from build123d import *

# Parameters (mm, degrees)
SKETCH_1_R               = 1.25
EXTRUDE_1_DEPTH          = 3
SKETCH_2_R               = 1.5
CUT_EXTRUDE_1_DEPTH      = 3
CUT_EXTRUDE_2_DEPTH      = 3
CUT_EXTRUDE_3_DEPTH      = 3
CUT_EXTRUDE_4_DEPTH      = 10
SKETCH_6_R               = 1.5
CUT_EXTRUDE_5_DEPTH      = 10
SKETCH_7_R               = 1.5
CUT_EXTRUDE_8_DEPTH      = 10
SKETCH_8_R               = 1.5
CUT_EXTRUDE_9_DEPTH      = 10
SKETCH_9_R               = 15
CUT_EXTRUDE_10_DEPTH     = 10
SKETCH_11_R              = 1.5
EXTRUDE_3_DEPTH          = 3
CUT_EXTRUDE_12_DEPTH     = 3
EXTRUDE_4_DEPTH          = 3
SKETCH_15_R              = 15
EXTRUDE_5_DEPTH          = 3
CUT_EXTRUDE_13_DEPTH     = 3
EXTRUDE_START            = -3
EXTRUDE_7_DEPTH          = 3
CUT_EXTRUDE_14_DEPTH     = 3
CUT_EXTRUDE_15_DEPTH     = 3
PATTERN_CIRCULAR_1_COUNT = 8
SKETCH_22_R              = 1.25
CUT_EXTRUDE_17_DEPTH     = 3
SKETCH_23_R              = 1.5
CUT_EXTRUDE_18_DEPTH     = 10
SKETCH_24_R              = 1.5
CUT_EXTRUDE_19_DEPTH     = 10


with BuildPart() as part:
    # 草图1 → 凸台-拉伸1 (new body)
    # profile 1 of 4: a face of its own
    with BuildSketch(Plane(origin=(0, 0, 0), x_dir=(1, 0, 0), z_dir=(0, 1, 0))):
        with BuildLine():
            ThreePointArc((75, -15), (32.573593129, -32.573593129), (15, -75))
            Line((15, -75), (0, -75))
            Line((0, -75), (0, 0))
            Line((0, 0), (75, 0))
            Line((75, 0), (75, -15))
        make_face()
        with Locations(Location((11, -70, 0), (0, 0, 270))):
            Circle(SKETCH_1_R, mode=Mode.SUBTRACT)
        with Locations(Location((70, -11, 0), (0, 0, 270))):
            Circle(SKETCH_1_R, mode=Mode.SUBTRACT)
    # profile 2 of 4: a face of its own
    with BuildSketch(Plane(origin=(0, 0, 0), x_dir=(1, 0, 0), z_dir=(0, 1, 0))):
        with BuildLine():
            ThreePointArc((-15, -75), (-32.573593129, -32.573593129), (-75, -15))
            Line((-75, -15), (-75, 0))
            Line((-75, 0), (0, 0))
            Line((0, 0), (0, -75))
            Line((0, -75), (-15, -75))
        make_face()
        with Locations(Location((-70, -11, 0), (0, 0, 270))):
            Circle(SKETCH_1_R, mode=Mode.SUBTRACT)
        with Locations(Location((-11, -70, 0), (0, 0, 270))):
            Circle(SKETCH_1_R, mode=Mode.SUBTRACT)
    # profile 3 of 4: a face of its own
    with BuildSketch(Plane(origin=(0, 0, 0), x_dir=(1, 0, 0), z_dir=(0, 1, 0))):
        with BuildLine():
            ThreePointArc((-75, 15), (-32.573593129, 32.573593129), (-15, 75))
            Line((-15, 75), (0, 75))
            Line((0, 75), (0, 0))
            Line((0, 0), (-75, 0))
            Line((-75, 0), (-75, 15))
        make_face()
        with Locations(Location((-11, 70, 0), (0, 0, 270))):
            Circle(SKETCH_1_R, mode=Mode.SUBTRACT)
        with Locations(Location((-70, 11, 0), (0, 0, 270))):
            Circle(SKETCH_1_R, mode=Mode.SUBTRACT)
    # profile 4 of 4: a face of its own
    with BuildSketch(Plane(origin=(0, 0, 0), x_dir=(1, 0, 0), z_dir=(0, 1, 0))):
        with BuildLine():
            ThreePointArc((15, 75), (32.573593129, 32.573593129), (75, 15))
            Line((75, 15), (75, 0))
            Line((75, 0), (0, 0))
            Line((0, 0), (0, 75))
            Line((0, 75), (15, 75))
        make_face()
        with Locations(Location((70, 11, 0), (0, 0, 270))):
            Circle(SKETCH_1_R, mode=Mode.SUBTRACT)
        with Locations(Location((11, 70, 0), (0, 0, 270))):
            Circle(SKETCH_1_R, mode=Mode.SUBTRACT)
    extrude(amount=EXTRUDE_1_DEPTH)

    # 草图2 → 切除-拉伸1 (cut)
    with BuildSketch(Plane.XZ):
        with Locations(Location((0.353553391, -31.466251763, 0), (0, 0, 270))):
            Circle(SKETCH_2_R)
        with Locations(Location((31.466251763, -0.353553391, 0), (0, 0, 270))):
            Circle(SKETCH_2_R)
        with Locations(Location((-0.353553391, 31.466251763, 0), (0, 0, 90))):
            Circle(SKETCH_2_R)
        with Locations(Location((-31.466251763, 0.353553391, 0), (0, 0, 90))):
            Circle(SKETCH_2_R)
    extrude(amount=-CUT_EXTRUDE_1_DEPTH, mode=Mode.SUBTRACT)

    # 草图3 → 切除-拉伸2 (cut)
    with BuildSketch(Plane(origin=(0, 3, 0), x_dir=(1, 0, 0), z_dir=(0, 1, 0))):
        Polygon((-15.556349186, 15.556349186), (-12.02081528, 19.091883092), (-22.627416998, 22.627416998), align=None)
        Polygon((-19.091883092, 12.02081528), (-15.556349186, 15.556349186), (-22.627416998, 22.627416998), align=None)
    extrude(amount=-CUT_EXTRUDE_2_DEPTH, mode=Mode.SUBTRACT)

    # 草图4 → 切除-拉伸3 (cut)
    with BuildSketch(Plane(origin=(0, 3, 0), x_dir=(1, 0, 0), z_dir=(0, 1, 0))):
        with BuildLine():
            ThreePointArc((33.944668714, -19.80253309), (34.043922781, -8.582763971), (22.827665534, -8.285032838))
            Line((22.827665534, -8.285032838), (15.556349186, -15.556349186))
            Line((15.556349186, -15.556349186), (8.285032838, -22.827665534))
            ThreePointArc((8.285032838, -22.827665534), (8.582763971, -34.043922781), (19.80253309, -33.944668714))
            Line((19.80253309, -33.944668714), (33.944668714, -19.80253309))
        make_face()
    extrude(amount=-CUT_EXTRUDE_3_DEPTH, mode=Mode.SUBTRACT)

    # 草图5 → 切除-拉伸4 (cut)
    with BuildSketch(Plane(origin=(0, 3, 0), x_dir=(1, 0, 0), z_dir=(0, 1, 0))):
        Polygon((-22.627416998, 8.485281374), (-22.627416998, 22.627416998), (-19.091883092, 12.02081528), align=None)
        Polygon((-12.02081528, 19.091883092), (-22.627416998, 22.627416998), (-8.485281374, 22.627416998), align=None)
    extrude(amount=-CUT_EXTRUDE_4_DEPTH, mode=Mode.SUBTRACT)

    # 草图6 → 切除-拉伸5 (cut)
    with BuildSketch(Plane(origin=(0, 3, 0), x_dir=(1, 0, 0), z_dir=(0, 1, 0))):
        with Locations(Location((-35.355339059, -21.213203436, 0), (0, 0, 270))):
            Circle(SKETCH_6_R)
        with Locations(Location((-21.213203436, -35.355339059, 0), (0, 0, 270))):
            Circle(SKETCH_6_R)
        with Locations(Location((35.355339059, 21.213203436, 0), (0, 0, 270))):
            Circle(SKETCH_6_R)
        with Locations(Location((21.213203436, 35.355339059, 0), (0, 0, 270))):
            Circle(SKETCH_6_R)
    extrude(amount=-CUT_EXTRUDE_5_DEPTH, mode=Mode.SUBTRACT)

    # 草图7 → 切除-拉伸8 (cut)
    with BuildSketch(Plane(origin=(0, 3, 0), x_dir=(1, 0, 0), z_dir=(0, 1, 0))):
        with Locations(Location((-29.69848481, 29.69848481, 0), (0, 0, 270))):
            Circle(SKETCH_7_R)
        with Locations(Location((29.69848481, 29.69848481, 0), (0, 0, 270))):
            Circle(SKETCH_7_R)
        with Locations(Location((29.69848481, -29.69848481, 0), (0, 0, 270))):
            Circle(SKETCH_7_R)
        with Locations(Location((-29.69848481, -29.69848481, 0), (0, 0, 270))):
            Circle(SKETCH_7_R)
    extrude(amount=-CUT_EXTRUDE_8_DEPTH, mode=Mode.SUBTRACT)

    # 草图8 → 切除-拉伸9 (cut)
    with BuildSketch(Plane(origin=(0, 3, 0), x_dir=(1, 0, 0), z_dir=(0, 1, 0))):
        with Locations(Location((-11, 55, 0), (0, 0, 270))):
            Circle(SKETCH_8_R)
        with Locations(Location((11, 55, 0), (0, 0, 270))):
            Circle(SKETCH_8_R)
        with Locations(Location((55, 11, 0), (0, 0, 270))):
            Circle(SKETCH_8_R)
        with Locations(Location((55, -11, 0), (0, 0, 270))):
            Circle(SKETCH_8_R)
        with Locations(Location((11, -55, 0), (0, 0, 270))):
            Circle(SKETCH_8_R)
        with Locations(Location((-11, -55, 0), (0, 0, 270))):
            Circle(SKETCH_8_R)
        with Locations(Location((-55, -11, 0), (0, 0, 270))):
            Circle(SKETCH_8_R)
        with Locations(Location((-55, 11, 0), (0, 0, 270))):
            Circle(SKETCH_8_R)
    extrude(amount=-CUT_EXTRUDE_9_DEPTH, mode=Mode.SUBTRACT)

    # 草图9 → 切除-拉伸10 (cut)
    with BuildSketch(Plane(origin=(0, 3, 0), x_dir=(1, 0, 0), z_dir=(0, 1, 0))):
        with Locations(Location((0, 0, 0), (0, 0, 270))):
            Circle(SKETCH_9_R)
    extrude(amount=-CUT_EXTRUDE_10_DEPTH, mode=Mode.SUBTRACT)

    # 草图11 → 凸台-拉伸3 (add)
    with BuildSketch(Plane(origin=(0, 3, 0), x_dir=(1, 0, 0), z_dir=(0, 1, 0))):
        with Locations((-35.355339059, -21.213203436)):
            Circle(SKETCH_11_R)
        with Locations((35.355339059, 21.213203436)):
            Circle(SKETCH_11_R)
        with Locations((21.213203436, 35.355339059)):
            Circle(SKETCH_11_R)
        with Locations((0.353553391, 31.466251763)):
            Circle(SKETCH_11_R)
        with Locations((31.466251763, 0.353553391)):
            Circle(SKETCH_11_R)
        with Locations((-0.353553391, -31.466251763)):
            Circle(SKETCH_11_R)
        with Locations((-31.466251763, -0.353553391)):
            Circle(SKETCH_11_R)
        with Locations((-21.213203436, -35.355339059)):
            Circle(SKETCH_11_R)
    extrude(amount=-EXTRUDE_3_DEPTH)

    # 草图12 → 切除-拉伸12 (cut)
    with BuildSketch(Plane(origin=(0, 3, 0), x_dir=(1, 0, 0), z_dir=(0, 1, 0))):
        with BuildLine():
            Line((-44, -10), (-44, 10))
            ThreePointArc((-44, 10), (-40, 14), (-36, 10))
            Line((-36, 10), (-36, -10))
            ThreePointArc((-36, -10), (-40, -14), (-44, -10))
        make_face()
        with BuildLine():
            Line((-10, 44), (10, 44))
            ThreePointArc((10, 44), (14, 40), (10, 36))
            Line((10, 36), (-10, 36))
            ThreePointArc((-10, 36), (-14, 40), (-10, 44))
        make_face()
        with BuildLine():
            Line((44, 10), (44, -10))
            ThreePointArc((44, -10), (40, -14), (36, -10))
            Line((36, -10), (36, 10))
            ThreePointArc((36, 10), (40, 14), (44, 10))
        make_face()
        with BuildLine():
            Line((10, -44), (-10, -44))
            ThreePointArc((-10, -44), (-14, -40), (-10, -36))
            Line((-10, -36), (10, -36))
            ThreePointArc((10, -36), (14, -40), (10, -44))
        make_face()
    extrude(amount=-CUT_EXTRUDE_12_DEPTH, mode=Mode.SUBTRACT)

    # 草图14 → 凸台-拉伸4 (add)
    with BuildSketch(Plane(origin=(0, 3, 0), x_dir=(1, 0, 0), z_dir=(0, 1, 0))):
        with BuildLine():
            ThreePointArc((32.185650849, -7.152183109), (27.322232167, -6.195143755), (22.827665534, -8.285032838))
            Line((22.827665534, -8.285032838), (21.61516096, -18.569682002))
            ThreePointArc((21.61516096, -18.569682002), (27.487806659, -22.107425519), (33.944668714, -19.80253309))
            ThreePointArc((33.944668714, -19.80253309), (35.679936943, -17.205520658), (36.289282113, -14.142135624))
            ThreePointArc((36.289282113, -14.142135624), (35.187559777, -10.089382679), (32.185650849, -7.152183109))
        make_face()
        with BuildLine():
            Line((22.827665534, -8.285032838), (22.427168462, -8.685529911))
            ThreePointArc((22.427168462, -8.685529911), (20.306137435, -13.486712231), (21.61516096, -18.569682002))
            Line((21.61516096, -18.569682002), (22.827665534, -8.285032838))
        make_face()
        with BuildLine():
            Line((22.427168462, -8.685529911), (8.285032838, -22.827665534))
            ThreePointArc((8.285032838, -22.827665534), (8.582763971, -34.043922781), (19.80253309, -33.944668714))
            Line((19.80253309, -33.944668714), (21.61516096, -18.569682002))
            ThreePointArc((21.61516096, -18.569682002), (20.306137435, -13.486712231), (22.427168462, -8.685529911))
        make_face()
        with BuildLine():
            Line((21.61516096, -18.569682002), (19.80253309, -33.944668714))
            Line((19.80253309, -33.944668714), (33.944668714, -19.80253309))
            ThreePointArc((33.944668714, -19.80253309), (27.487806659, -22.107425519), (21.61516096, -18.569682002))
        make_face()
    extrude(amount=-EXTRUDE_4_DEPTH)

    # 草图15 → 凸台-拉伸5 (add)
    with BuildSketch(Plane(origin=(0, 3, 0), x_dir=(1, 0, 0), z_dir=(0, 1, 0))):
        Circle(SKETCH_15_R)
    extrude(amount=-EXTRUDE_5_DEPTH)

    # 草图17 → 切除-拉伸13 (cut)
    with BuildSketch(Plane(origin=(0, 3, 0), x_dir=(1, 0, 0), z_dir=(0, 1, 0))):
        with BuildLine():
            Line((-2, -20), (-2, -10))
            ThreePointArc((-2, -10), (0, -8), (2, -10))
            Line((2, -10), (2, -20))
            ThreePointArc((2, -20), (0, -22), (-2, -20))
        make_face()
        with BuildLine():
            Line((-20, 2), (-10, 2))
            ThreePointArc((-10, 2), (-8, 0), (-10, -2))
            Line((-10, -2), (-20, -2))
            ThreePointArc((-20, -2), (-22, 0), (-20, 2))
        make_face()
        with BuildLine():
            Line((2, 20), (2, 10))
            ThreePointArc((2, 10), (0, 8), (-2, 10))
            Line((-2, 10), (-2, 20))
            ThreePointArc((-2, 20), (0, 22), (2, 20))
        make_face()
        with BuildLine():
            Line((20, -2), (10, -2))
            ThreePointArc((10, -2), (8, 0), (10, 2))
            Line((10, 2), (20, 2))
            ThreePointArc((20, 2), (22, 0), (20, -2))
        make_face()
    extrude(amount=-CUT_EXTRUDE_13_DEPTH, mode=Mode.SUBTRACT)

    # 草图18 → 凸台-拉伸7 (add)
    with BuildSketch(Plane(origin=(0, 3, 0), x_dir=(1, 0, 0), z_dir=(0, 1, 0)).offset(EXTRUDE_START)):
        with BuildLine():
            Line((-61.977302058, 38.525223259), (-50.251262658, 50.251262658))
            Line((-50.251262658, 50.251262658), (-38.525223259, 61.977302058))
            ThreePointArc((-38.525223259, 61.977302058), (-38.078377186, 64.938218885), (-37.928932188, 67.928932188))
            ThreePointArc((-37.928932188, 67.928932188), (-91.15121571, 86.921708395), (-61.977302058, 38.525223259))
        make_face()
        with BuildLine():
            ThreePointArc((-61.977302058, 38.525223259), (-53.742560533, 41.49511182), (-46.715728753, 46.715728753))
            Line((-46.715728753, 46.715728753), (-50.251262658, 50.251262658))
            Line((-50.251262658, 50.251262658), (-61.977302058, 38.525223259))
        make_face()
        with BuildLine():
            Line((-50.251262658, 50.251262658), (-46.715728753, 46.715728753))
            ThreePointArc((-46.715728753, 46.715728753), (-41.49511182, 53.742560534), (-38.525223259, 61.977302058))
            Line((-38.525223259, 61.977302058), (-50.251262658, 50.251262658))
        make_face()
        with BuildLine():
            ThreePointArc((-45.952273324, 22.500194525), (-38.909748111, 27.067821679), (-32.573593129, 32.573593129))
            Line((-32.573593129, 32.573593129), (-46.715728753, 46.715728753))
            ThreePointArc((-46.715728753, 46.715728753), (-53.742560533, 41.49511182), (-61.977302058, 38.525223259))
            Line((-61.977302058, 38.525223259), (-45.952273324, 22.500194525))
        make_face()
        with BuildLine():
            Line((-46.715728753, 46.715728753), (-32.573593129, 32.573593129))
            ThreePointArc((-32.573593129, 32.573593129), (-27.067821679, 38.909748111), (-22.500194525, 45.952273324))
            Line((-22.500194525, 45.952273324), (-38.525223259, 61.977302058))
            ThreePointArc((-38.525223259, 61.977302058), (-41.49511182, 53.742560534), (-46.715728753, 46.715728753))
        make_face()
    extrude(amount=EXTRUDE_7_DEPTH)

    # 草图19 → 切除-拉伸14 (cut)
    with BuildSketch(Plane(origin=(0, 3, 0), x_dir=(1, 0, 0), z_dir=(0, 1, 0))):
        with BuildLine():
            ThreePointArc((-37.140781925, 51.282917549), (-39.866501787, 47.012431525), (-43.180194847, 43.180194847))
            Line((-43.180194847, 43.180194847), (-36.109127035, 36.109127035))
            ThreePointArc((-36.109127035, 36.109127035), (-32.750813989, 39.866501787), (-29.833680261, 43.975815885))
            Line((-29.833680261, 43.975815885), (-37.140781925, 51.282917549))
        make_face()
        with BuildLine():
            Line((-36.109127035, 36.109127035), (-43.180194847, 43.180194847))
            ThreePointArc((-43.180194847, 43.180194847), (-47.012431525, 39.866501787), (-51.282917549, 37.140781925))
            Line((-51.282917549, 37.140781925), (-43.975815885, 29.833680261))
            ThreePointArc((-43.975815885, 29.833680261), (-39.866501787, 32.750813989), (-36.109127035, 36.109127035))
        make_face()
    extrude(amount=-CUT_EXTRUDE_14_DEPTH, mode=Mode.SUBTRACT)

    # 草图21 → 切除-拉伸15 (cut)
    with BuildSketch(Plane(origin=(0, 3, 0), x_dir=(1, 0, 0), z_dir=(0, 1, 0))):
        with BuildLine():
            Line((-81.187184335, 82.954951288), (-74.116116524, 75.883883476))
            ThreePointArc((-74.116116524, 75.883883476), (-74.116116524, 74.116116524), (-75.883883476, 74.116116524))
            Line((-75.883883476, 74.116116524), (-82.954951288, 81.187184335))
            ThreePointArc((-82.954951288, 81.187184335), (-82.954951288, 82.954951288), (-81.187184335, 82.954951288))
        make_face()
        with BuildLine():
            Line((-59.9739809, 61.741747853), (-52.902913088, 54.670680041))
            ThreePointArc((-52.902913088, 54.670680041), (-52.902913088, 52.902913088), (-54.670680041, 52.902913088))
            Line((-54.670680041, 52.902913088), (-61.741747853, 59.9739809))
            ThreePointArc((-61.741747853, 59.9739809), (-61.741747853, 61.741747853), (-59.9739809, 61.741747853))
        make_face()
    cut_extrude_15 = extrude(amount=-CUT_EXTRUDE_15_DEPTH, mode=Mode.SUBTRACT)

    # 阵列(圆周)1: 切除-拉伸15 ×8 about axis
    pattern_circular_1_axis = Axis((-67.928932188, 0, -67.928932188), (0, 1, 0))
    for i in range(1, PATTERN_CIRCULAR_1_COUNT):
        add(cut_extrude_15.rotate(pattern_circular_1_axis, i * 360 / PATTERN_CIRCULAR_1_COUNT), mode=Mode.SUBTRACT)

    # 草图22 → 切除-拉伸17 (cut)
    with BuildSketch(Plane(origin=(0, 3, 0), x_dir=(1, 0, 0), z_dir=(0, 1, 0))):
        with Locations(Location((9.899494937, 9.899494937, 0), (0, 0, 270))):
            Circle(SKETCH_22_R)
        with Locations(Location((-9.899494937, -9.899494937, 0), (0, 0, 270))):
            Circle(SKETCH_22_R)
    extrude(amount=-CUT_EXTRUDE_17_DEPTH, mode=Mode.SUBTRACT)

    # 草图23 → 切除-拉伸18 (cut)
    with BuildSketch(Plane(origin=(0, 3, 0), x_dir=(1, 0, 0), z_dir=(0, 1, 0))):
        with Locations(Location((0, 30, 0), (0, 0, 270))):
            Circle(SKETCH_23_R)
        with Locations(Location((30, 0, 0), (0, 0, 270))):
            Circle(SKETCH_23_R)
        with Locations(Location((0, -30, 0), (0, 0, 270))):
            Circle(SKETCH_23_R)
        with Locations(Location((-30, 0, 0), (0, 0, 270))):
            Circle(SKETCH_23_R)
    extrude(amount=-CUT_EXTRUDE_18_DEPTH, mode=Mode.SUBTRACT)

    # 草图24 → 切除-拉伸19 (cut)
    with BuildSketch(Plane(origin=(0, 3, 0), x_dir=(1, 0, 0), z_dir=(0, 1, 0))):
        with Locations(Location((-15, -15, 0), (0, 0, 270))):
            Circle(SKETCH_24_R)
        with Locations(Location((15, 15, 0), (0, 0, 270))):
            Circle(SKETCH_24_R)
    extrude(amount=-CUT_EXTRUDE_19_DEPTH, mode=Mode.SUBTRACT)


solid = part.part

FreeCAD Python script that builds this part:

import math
import FreeCAD as App
import Part
import Sketcher
Q = App.Units.Quantity

doc = App.newDocument("Part")
body = doc.addObject("PartDesign::Body", "Body")

sketch1 = body.newObject("Sketcher::SketchObject", "Sketch")
sketch1.AttachmentSupport = (doc.getObject("XZ_Plane"), [""])
sketch1.MapMode = "FlatFace"
sketch1.addGeometry([
    Part.ArcOfCircle(Part.Circle(App.Vector(75, 75, 0), App.Vector(0, 0, 1), 60), math.radians(-180), math.radians(-90)),
    Part.LineSegment(App.Vector(75, 15, 0), App.Vector(75, -15, 0)),
    Part.ArcOfCircle(Part.Circle(App.Vector(75, -75, 0), App.Vector(0, 0, 1), 60), math.radians(90), math.radians(180)),
    Part.LineSegment(App.Vector(15, -75, 0), App.Vector(-15, -75, 0)),
    Part.ArcOfCircle(Part.Circle(App.Vector(-75, -75, 0), App.Vector(0, 0, 1), 60), math.radians(0), math.radians(90)),
    Part.LineSegment(App.Vector(-75, -15, 0), App.Vector(-75, 15, 0)),
    Part.ArcOfCircle(Part.Circle(App.Vector(-75, 75, 0), App.Vector(0, 0, 1), 60), math.radians(-90), math.radians(0)),
    Part.LineSegment(App.Vector(-15, 75, 0), App.Vector(15, 75, 0)),
    Part.Circle(App.Vector(11, 70, 0), App.Vector(0, 0, 1), 1.25),
    Part.Circle(App.Vector(70, 11, 0), App.Vector(0, 0, 1), 1.25),
    Part.Circle(App.Vector(11, -70, 0), App.Vector(0, 0, 1), 1.25),
    Part.Circle(App.Vector(70, -11, 0), App.Vector(0, 0, 1), 1.25),
    Part.Circle(App.Vector(-70, 11, 0), App.Vector(0, 0, 1), 1.25),
    Part.Circle(App.Vector(-11, 70, 0), App.Vector(0, 0, 1), 1.25),
    Part.Circle(App.Vector(-70, -11, 0), App.Vector(0, 0, 1), 1.25),
    Part.Circle(App.Vector(-11, -70, 0), App.Vector(0, 0, 1), 1.25),
], False)
sketch1.addConstraint([
    Sketcher.Constraint("Coincident", 0, 2, 1, 1),
    Sketcher.Constraint("Coincident", 1, 2, 2, 1),
    Sketcher.Constraint("Coincident", 2, 2, 3, 1),
    Sketcher.Constraint("Coincident", 3, 2, 4, 1),
    Sketcher.Constraint("Coincident", 4, 2, 5, 1),
    Sketcher.Constraint("Coincident", 5, 2, 6, 1),
    Sketcher.Constraint("Coincident", 6, 2, 7, 1),
    Sketcher.Constraint("Coincident", 7, 2, 0, 1),
    Sketcher.Constraint("Vertical", 1),
    Sketcher.Constraint("Horizontal", 3),
    Sketcher.Constraint("Vertical", 5),
    Sketcher.Constraint("Horizontal", 7),
    Sketcher.Constraint("Equal", 0, 2),
    Sketcher.Constraint("Equal", 2, 4),
    Sketcher.Constraint("Equal", 4, 6),
    Sketcher.Constraint("Equal", 8, 9),
    Sketcher.Constraint("Equal", 9, 10),
    Sketcher.Constraint("Equal", 10, 11),
    Sketcher.Constraint("Equal", 11, 12),
    Sketcher.Constraint("Equal", 12, 13),
    Sketcher.Constraint("Equal", 13, 14),
    Sketcher.Constraint("Equal", 14, 15),
    Sketcher.Constraint("Symmetric", 0, 3, 4, 3, -1, 1),
    Sketcher.Constraint("Symmetric", 2, 3, 6, 3, -1, 1),
    Sketcher.Constraint("Symmetric", 11, 3, 12, 3, -1, 1),
    Sketcher.Constraint("Symmetric", 10, 3, 13, 3, -1, 1),
    Sketcher.Constraint("Symmetric", 9, 3, 14, 3, -1, 1),
    Sketcher.Constraint("Symmetric", 8, 3, 15, 3, -1, 1),
    Sketcher.Constraint("Symmetric", 2, 3, 4, 3, -2),
    Sketcher.Constraint("Symmetric", 9, 3, 12, 3, -2),
    Sketcher.Constraint("Symmetric", 8, 3, 13, 3, -2),
    Sketcher.Constraint("Horizontal", 4, 3, 2, 2),
    Sketcher.Constraint("Horizontal", 0, 3, 6, 2),
    Sketcher.Constraint("Vertical", 2, 3, 0, 2),
    Sketcher.Constraint("Vertical", 6, 3, 4, 2),
    Sketcher.Constraint("Equal", 7, 1),
    Sketcher.Constraint("Radius", 0, 60.0),
    Sketcher.Constraint("Diameter", 8, 2.5),
    Sketcher.Constraint("DistanceX", 3, 2, 3, 1, 30.0),
    Sketcher.Constraint("DistanceX", -1, 1, 8, 3, 11.0),
    Sketcher.Constraint("DistanceY", -1, 1, 8, 3, 70.0),
    Sketcher.Constraint("DistanceX", -1, 1, 9, 3, 70.0),
    Sketcher.Constraint("DistanceY", -1, 1, 9, 3, 11.0),
])
pad1 = body.newObject("PartDesign::Pad", "Pad")
pad1.Profile = sketch1
pad1.Length = 3
pad1.Reversed = True

sketch2 = body.newObject("Sketcher::SketchObject", "Sketch001")
sketch2.AttachmentSupport = (doc.getObject("XZ_Plane"), [""])
sketch2.MapMode = "FlatFace"
sketch2.addGeometry([
    Part.Circle(App.Vector(0.353553, -31.466252, 0), App.Vector(0, 0, 1), 1.5),
    Part.Circle(App.Vector(31.466252, -0.353553, 0), App.Vector(0, 0, 1), 1.5),
    Part.Circle(App.Vector(-0.353553, 31.466252, 0), App.Vector(0, 0, 1), 1.5),
    Part.Circle(App.Vector(-31.466252, 0.353553, 0), App.Vector(0, 0, 1), 1.5),
], False)
sketch2.addConstraint([
    Sketcher.Constraint("Equal", 0, 1),
    Sketcher.Constraint("Equal", 1, 2),
    Sketcher.Constraint("Equal", 2, 3),
    Sketcher.Constraint("Symmetric", 0, 3, 2, 3, -1, 1),
    Sketcher.Constraint("Symmetric", 1, 3, 3, 3, -1, 1),
    Sketcher.Constraint("Diameter", 0, 3.0),
    Sketcher.Constraint("DistanceX", 0, 3, 1, 3, 31.112698),
    Sketcher.Constraint("DistanceY", 0, 3, 1, 3, 31.112698),
    Sketcher.Constraint("DistanceY", 0, 3, -1, 1, 31.466252),
    Sketcher.Constraint("DistanceX", -1, 1, 1, 3, 31.466252),
])
pocket1 = body.newObject("PartDesign::Pocket", "Pocket")
pocket1.Profile = sketch2
pocket1.Length = 3

sketch3 = body.newObject("Sketcher::SketchObject", "Sketch002")
sketch3.AttachmentSupport = (doc.getObject("XZ_Plane"), [""])
sketch3.MapMode = "FlatFace"
sketch3.AttachmentOffset = App.Placement(App.Vector(0, 0, -3), App.Rotation())
sketch3.addGeometry([
    Part.LineSegment(App.Vector(-12.020815, -19.091883, 0), App.Vector(-22.627417, -22.627417, 0)),
    Part.LineSegment(App.Vector(-22.627417, -22.627417, 0), App.Vector(-19.091883, -12.020815, 0)),
    Part.LineSegment(App.Vector(-19.091883, -12.020815, 0), App.Vector(-12.020815, -19.091883, 0)),
], False)
sketch3.addConstraint([
    Sketcher.Constraint("Coincident", 0, 2, 1, 1),
    Sketcher.Constraint("Coincident", 1, 2, 2, 1),
    Sketcher.Constraint("Coincident", 2, 2, 0, 1),
    Sketcher.Constraint("Equal", 0, 1),
    Sketcher.Constraint("Angle", 2, Q("-45 deg")),
    Sketcher.Constraint("Distance", 2, 10.0),
    Sketcher.Constraint("DistanceY", 0, 2, 1, 2, 10.606602),
    Sketcher.Constraint("DistanceX", 0, 2, -1, 1, 22.627417),
    Sketcher.Constraint("DistanceY", 0, 2, -1, 1, 22.627417),
])
pocket2 = body.newObject("PartDesign::Pocket", "Pocket001")
pocket2.Profile = sketch3
pocket2.Length = 3
pocket2.Reversed = True

sketch4 = body.newObject("Sketcher::SketchObject", "Sketch003")
sketch4.AttachmentSupport = (doc.getObject("XZ_Plane"), [""])
sketch4.MapMode = "FlatFace"
sketch4.AttachmentOffset = App.Placement(App.Vector(0, 0, -3), App.Rotation())
sketch4.addGeometry([
    Part.ArcOfCircle(Part.Circle(App.Vector(28.284271, 14.142136, 0), App.Vector(0, 0, 1), 8.005011), math.radians(-132.972618), math.radians(45)),
    Part.LineSegment(App.Vector(22.827666, 8.285033, 0), App.Vector(8.285033, 22.827666, 0)),
    Part.ArcOfCircle(Part.Circle(App.Vector(14.142136, 28.284271, 0), App.Vector(0, 0, 1), 8.005011), math.radians(45), math.radians(222.972618)),
    Part.LineSegment(App.Vector(19.802533, 33.944669, 0), App.Vector(33.944669, 19.802533, 0)),
], False)
sketch4.addConstraint([
    Sketcher.Constraint("Coincident", 0, 1, 1, 1),
    Sketcher.Constraint("Coincident", 1, 2, 2, 2),
    Sketcher.Constraint("Tangent", 2, 1, 3, 1),
    Sketcher.Constraint("Tangent", 3, 2, 0, 2),
    Sketcher.Constraint("Equal", 0, 2),
    Sketcher.Constraint("Parallel", 1, 3),
    Sketcher.Constraint("Angle", 1, Q("135 deg")),
    Sketcher.Constraint("Distance", 3, 20.0),
    Sketcher.Constraint("Radius", 0, 8.005011),
    Sketcher.Constraint("DistanceX", 1, 2, 2, 1, 11.5175),
    Sketcher.Constraint("DistanceX", -1, 1, 0, 3, 28.284271),
    Sketcher.Constraint("DistanceY", -1, 1, 2, 3, 28.284271),
])
pocket3 = body.newObject("PartDesign::Pocket", "Pocket002")
pocket3.Profile = sketch4
pocket3.Length = 3
pocket3.Reversed = True

sketch5 = body.newObject("Sketcher::SketchObject", "Sketch004")
sketch5.AttachmentSupport = (doc.getObject("XZ_Plane"), [""])
sketch5.MapMode = "FlatFace"
sketch5.AttachmentOffset = App.Placement(App.Vector(0, 0, -3), App.Rotation())
sketch5.addGeometry([
    Part.LineSegment(App.Vector(-22.627417, -22.627417, 0), App.Vector(-22.627417, -8.485281, 0)),
    Part.LineSegment(App.Vector(-22.627417, -8.485281, 0), App.Vector(-19.091883, -12.020815, 0)),
    Part.LineSegment(App.Vector(-19.091883, -12.020815, 0), App.Vector(-22.627417, -22.627417, 0)),
    Part.LineSegment(App.Vector(-22.627417, -22.627417, 0), App.Vector(-12.020815, -19.091883, 0)),
    Part.LineSegment(App.Vector(-12.020815, -19.091883, 0), App.Vector(-8.485281, -22.627417, 0)),
    Part.LineSegment(App.Vector(-8.485281, -22.627417, 0), App.Vector(-22.627417, -22.627417, 0)),
], False)
sketch5.addConstraint([
    Sketcher.Constraint("Coincident", 0, 2, 1, 1),
    Sketcher.Constraint("Coincident", 1, 2, 2, 1),
    Sketcher.Constraint("Coincident", 2, 2, 0, 1),
    Sketcher.Constraint("Coincident", 3, 2, 4, 1),
    Sketcher.Constraint("Coincident", 4, 2, 5, 1),
    Sketcher.Constraint("Coincident", 5, 2, 3, 1),
    Sketcher.Constraint("Vertical", 0),
    Sketcher.Constraint("Horizontal", 5),
    Sketcher.Constraint("Coincident", 5, 2, 2, 2),
    Sketcher.Constraint("Parallel", 1, 4),
    Sketcher.Constraint("Equal", 5, 0),
    Sketcher.Constraint("Equal", 2, 3),
    Sketcher.Constraint("Equal", 1, 4),
    Sketcher.Constraint("Distance", 1, 5.0),
    Sketcher.Constraint("DistanceY", 2, 2, 1, 2, 10.606602),
    Sketcher.Constraint("DistanceY", 0, 2, -1, 1, 8.485281),
    Sketcher.Constraint("DistanceX", 4, 2, -1, 1, 8.485281),
])
pocket4 = body.newObject("PartDesign::Pocket", "Pocket003")
pocket4.Profile = sketch5
pocket4.Length = 10
pocket4.Reversed = True

sketch6 = body.newObject("Sketcher::SketchObject", "Sketch005")
sketch6.AttachmentSupport = (doc.getObject("XZ_Plane"), [""])
sketch6.MapMode = "FlatFace"
sketch6.AttachmentOffset = App.Placement(App.Vector(0, 0, -3), App.Rotation())
sketch6.addGeometry([
    Part.Circle(App.Vector(-35.355339, 21.213203, 0), App.Vector(0, 0, 1), 1.5),
    Part.Circle(App.Vector(-21.213203, 35.355339, 0), App.Vector(0, 0, 1), 1.5),
    Part.Circle(App.Vector(35.355339, -21.213203, 0), App.Vector(0, 0, 1), 1.5),
    Part.Circle(App.Vector(21.213203, -35.355339, 0), App.Vector(0, 0, 1), 1.5),
], False)
sketch6.addConstraint([
    Sketcher.Constraint("Equal", 0, 1),
    Sketcher.Constraint("Equal", 1, 2),
    Sketcher.Constraint("Equal", 2, 3),
    Sketcher.Constraint("Symmetric", 0, 3, 2, 3, -1, 1),
    Sketcher.Constraint("Symmetric", 1, 3, 3, 3, -1, 1),
    Sketcher.Constraint("Diameter", 0, 3.0),
    Sketcher.Constraint("DistanceX", 0, 3, -1, 1, 35.355339),
    Sketcher.Constraint("DistanceY", -1, 1, 1, 3, 35.355339),
    Sketcher.Constraint("DistanceY", -1, 1, 0, 3, 21.213203),
    Sketcher.Constraint("DistanceX", 1, 3, -1, 1, 21.213203),
])
pocket5 = body.newObject("PartDesign::Pocket", "Pocket004")
pocket5.Profile = sketch6
pocket5.Length = 10
pocket5.Reversed = True

sketch7 = body.newObject("Sketcher::SketchObject", "Sketch006")
sketch7.AttachmentSupport = (doc.getObject("XZ_Plane"), [""])
sketch7.MapMode = "FlatFace"
sketch7.AttachmentOffset = App.Placement(App.Vector(0, 0, -3), App.Rotation())
sketch7.addGeometry([
    Part.Circle(App.Vector(-29.698485, -29.698485, 0), App.Vector(0, 0, 1), 1.5),
    Part.Circle(App.Vector(29.698485, -29.698485, 0), App.Vector(0, 0, 1), 1.5),
    Part.Circle(App.Vector(29.698485, 29.698485, 0), App.Vector(0, 0, 1), 1.5),
    Part.Circle(App.Vector(-29.698485, 29.698485, 0), App.Vector(0, 0, 1), 1.5),
], False)
sketch7.addConstraint([
    Sketcher.Constraint("Equal", 0, 1),
    Sketcher.Constraint("Equal", 1, 2),
    Sketcher.Constraint("Equal", 2, 3),
    Sketcher.Constraint("Symmetric", 0, 3, 2, 3, -1, 1),
    Sketcher.Constraint("Symmetric", 1, 3, 3, 3, -1, 1),
    Sketcher.Constraint("Symmetric", 0, 3, 1, 3, -2),
    Sketcher.Constraint("Diameter", 0, 3.0),
    Sketcher.Constraint("DistanceX", 0, 3, 1, 3, 59.39697),
    Sketcher.Constraint("DistanceY", 1, 3, 2, 3, 59.39697),
])
pocket6 = body.newObject("PartDesign::Pocket", "Pocket005")
pocket6.Profile = sketch7
pocket6.Length = 10
pocket6.Reversed = True

sketch8 = body.newObject("Sketcher::SketchObject", "Sketch007")
sketch8.AttachmentSupport = (doc.getObject("XZ_Plane"), [""])
sketch8.MapMode = "FlatFace"
sketch8.AttachmentOffset = App.Placement(App.Vector(0, 0, -3), App.Rotation())
sketch8.addGeometry([
    Part.Circle(App.Vector(-11, -55, 0), App.Vector(0, 0, 1), 1.5),
    Part.Circle(App.Vector(11, -55, 0), App.Vector(0, 0, 1), 1.5),
    Part.Circle(App.Vector(55, -11, 0), App.Vector(0, 0, 1), 1.5),
    Part.Circle(App.Vector(55, 11, 0), App.Vector(0, 0, 1), 1.5),
    Part.Circle(App.Vector(11, 55, 0), App.Vector(0, 0, 1), 1.5),
    Part.Circle(App.Vector(-11, 55, 0), App.Vector(0, 0, 1), 1.5),
    Part.Circle(App.Vector(-55, 11, 0), App.Vector(0, 0, 1), 1.5),
    Part.Circle(App.Vector(-55, -11, 0), App.Vector(0, 0, 1), 1.5),
], False)
sketch8.addConstraint([
    Sketcher.Constraint("Equal", 0, 1),
    Sketcher.Constraint("Equal", 1, 2),
    Sketcher.Constraint("Equal", 2, 3),
    Sketcher.Constraint("Equal", 3, 4),
    Sketcher.Constraint("Equal", 4, 5),
    Sketcher.Constraint("Equal", 5, 6),
    Sketcher.Constraint("Equal", 6, 7),
    Sketcher.Constraint("Symmetric", 0, 3, 4, 3, -1, 1),
    Sketcher.Constraint("Symmetric", 1, 3, 5, 3, -1, 1),
    Sketcher.Constraint("Symmetric", 2, 3, 6, 3, -1, 1),
    Sketcher.Constraint("Symmetric", 3, 3, 7, 3, -1, 1),
    Sketcher.Constraint("Symmetric", 0, 3, 1, 3, -2),
    Sketcher.Constraint("Symmetric", 3, 3, 6, 3, -2),
    Sketcher.Constraint("Diameter", 0, 3.0),
    Sketcher.Constraint("DistanceX", 0, 3, -1, 1, 11.0),
    Sketcher.Constraint("DistanceY", 0, 3, -1, 1, 55.0),
    Sketcher.Constraint("DistanceX", -1, 1, 2, 3, 55.0),
    Sketcher.Constraint("DistanceY", 2, 3, -1, 1, 11.0),
])
pocket7 = body.newObject("PartDesign::Pocket", "Pocket006")
pocket7.Profile = sketch8
pocket7.Length = 10
pocket7.Reversed = True

sketch9 = body.newObject("Sketcher::SketchObject", "Sketch008")
sketch9.AttachmentSupport = (doc.getObject("XZ_Plane"), [""])
sketch9.MapMode = "FlatFace"
sketch9.AttachmentOffset = App.Placement(App.Vector(0, 0, -3), App.Rotation())
sketch9.addGeometry(Part.Circle(App.Vector(0, 0, 0), App.Vector(0, 0, 1), 15), False)
sketch9.addConstraint([
    Sketcher.Constraint("Coincident", 0, 3, -1, 1),
    Sketcher.Constraint("Diameter", 0, 30.0),
])
pocket8 = body.newObject("PartDesign::Pocket", "Pocket007")
pocket8.Profile = sketch9
pocket8.Length = 10
pocket8.Reversed = True

sketch10 = body.newObject("Sketcher::SketchObject", "Sketch009")
sketch10.AttachmentSupport = (doc.getObject("XZ_Plane"), [""])
sketch10.MapMode = "FlatFace"
sketch10.AttachmentOffset = App.Placement(App.Vector(0, 0, -3), App.Rotation())
sketch10.addGeometry([
    Part.Circle(App.Vector(-35.355339, 21.213203, 0), App.Vector(0, 0, 1), 1.5),
    Part.Circle(App.Vector(35.355339, -21.213203, 0), App.Vector(0, 0, 1), 1.5),
    Part.Circle(App.Vector(21.213203, -35.355339, 0), App.Vector(0, 0, 1), 1.5),
    Part.Circle(App.Vector(0.353553, -31.466252, 0), App.Vector(0, 0, 1), 1.5),
    Part.Circle(App.Vector(31.466252, -0.353553, 0), App.Vector(0, 0, 1), 1.5),
    Part.Circle(App.Vector(-0.353553, 31.466252, 0), App.Vector(0, 0, 1), 1.5),
    Part.Circle(App.Vector(-31.466252, 0.353553, 0), App.Vector(0, 0, 1), 1.5),
    Part.Circle(App.Vector(-21.213203, 35.355339, 0), App.Vector(0, 0, 1), 1.5),
], False)
sketch10.addConstraint([
    Sketcher.Constraint("Equal", 0, 1),
    Sketcher.Constraint("Equal", 1, 2),
    Sketcher.Constraint("Equal", 2, 3),
    Sketcher.Constraint("Equal", 3, 4),
    Sketcher.Constraint("Equal", 4, 5),
    Sketcher.Constraint("Equal", 5, 6),
    Sketcher.Constraint("Equal", 6, 7),
    Sketcher.Constraint("Symmetric", 0, 3, 1, 3, -1, 1),
    Sketcher.Constraint("Symmetric", 3, 3, 5, 3, -1, 1),
    Sketcher.Constraint("Symmetric", 4, 3, 6, 3, -1, 1),
    Sketcher.Constraint("Symmetric", 2, 3, 7, 3, -1, 1),
    Sketcher.Constraint("Diameter", 0, 3.0),
    Sketcher.Constraint("DistanceX", 3, 3, 4, 3, 31.112698),
    Sketcher.Constraint("DistanceY", 3, 3, 4, 3, 31.112698),
    Sketcher.Constraint("DistanceX", 0, 3, -1, 1, 35.355339),
    Sketcher.Constraint("DistanceY", 2, 3, -1, 1, 35.355339),
    Sketcher.Constraint("DistanceY", 3, 3, -1, 1, 31.466252),
    Sketcher.Constraint("DistanceX", -1, 1, 4, 3, 31.466252),
    Sketcher.Constraint("DistanceX", 3, 3, 2, 3, 20.85965),
    Sketcher.Constraint("DistanceY", 3, 3, 1, 3, 10.253048),
])
pad2 = body.newObject("PartDesign::Pad", "Pad001")
pad2.Profile = sketch10
pad2.Length = 3

sketch11 = body.newObject("Sketcher::SketchObject", "Sketch010")
sketch11.AttachmentSupport = (doc.getObject("XZ_Plane"), [""])
sketch11.MapMode = "FlatFace"
sketch11.AttachmentOffset = App.Placement(App.Vector(0, 0, -3), App.Rotation())
sketch11.addGeometry([
    Part.LineSegment(App.Vector(-44, -10, 0), App.Vector(-44, 10, 0)),
    Part.ArcOfCircle(Part.Circle(App.Vector(-40, 10, 0), App.Vector(0, 0, 1), 4), math.radians(0), math.radians(180)),
    Part.LineSegment(App.Vector(-36, 10, 0), App.Vector(-36, -10, 0)),
    Part.ArcOfCircle(Part.Circle(App.Vector(-40, -10, 0), App.Vector(0, 0, 1), 4), math.radians(180), math.radians(360)),
    Part.LineSegment(App.Vector(10, -44, 0), App.Vector(-10, -44, 0)),
    Part.ArcOfCircle(Part.Circle(App.Vector(-10, -40, 0), App.Vector(0, 0, 1), 4), math.radians(90), math.radians(270)),
    Part.LineSegment(App.Vector(-10, -36, 0), App.Vector(10, -36, 0)),
    Part.ArcOfCircle(Part.Circle(App.Vector(10, -40, 0), App.Vector(0, 0, 1), 4), math.radians(-90), math.radians(90)),
    Part.LineSegment(App.Vector(44, 10, 0), App.Vector(44, -10, 0)),
    Part.ArcOfCircle(Part.Circle(App.Vector(40, -10, 0), App.Vector(0, 0, 1), 4), math.radians(180), math.radians(360)),
    Part.LineSegment(App.Vector(36, -10, 0), App.Vector(36, 10, 0)),
    Part.ArcOfCircle(Part.Circle(App.Vector(40, 10, 0), App.Vector(0, 0, 1), 4), math.radians(0), math.radians(180)),
    Part.LineSegment(App.Vector(-10, 44, 0), App.Vector(10, 44, 0)),
    Part.ArcOfCircle(Part.Circle(App.Vector(10, 40, 0), App.Vector(0, 0, 1), 4), math.radians(-90), math.radians(90)),
    Part.LineSegment(App.Vector(10, 36, 0), App.Vector(-10, 36, 0)),
    Part.ArcOfCircle(Part.Circle(App.Vector(-10, 40, 0), App.Vector(0, 0, 1), 4), math.radians(90), math.radians(270)),
], False)
sketch11.addConstraint([
    Sketcher.Constraint("Tangent", 0, 2, 1, 2),
    Sketcher.Constraint("Tangent", 1, 1, 2, 1),
    Sketcher.Constraint("Tangent", 2, 2, 3, 2),
    Sketcher.Constraint("Tangent", 3, 1, 0, 1),
    Sketcher.Constraint("Tangent", 4, 2, 5, 2),
    Sketcher.Constraint("Tangent", 5, 1, 6, 1),
    Sketcher.Constraint("Tangent", 6, 2, 7, 2),
    Sketcher.Constraint("Tangent", 7, 1, 4, 1),
    Sketcher.Constraint("Tangent", 8, 2, 9, 2),
    Sketcher.Constraint("Tangent", 9, 1, 10, 1),
    Sketcher.Constraint("Tangent", 10, 2, 11, 2),
    Sketcher.Constraint("Tangent", 11, 1, 8, 1),
    Sketcher.Constraint("Tangent", 12, 2, 13, 2),
    Sketcher.Constraint("Tangent", 13, 1, 14, 1),
    Sketcher.Constraint("Tangent", 14, 2, 15, 2),
    Sketcher.Constraint("Tangent", 15, 1, 12, 1),
    Sketcher.Constraint("Vertical", 0),
    Sketcher.Constraint("Vertical", 2),
    Sketcher.Constraint("Horizontal", 4),
    Sketcher.Constraint("Horizontal", 6),
    Sketcher.Constraint("Vertical", 8),
    Sketcher.Constraint("Vertical", 10),
    Sketcher.Constraint("Horizontal", 12),
    Sketcher.Constraint("Horizontal", 14),
    Sketcher.Constraint("Equal", 3, 5),
    Sketcher.Constraint("Equal", 7, 9),
    Sketcher.Constraint("Equal", 11, 13),
    Sketcher.Constraint("Symmetric", 1, 3, 9, 3, -1, 1),
    Sketcher.Constraint("Symmetric", 5, 3, 13, 3, -1, 1),
    Sketcher.Constraint("Horizontal", 3, 3, 9, 3),
    Sketcher.Constraint("Horizontal", 1, 3, 11, 3),
    Sketcher.Constraint("Vertical", 7, 3, 13, 3),
    Sketcher.Constraint("Vertical", 5, 3, 15, 3),
    Sketcher.Constraint("Equal", 14, 0),
    Sketcher.Constraint("Radius", 1, 4.0),
    Sketcher.Constraint("DistanceX", 4, 2, 4, 1, 20.0),
    Sketcher.Constraint("DistanceX", 1, 3, -1, 1, 40.0),
    Sketcher.Constraint("DistanceY", 5, 3, -1, 1, 40.0),
])
pocket9 = body.newObject("PartDesign::Pocket", "Pocket008")
pocket9.Profile = sketch11
pocket9.Length = 3
pocket9.Reversed = True

sketch12 = body.newObject("Sketcher::SketchObject", "Sketch011")
sketch12.AttachmentSupport = (doc.getObject("XZ_Plane"), [""])
sketch12.MapMode = "FlatFace"
sketch12.AttachmentOffset = App.Placement(App.Vector(0, 0, -3), App.Rotation())
sketch12.addGeometry([
    Part.ArcOfCircle(Part.Circle(App.Vector(28.284271, 14.142136, 0), App.Vector(0, 0, 1), 8.005011), math.radians(-132.972618), math.radians(-60.832319)),
    Part.LineSegment(App.Vector(22.827666, 8.285033, 0), App.Vector(22.427168, 8.68553, 0)),
    Part.LineSegment(App.Vector(22.427168, 8.68553, 0), App.Vector(8.285033, 22.827666, 0)),
    Part.ArcOfCircle(Part.Circle(App.Vector(14.142136, 28.284271, 0), App.Vector(0, 0, 1), 8.005011), math.radians(45), math.radians(222.972618)),
    Part.LineSegment(App.Vector(19.802533, 33.944669, 0), App.Vector(33.944669, 19.802533, 0)),
    Part.ArcOfCircle(Part.Circle(App.Vector(28.284271, 14.142136, 0), App.Vector(0, 0, 1), 8.005011), math.radians(0), math.radians(45)),
    Part.ArcOfCircle(Part.Circle(App.Vector(28.284271, 14.142136, 0), App.Vector(0, 0, 1), 8.005011), math.radians(-60.832319), math.radians(0)),
], False)
sketch12.addConstraint([
    Sketcher.Constraint("Coincident", 0, 1, 1, 1),
    Sketcher.Constraint("Coincident", 1, 2, 2, 1),
    Sketcher.Constraint("Coincident", 2, 2, 3, 2),
    Sketcher.Constraint("Tangent", 3, 1, 4, 1),
    Sketcher.Constraint("Tangent", 4, 2, 5, 2),
    Sketcher.Constraint("Tangent", 5, 1, 6, 2),
    Sketcher.Constraint("Tangent", 6, 1, 0, 2),
    Sketcher.Constraint("Coincident", 5, 3, 0, 3),
    Sketcher.Constraint("Equal", 0, 3),
    Sketcher.Constraint("Parallel", 1, 2),
    Sketcher.Constraint("Parallel", 2, 4),
    Sketcher.Constraint("Horizontal", 6, 3, 5, 1),
    Sketcher.Constraint("Equal", 2, 4),
    Sketcher.Constraint("Angle", 1, Q("135 deg")),
    Sketcher.Constraint("Distance", 2, 20.0),
    Sketcher.Constraint("Radius", 0, 8.005011),
    Sketcher.Constraint("DistanceX", 2, 2, 3, 1, 11.5175),
    Sketcher.Constraint("DistanceX", -1, 1, 0, 3, 28.284271),
    Sketcher.Constraint("DistanceY", -1, 1, 3, 3, 28.284271),
    Sketcher.Constraint("DistanceX", -1, 1, 6, 1, 32.185651),
])
pad3 = body.newObject("PartDesign::Pad", "Pad002")
pad3.Profile = sketch12
pad3.Length = 3

sketch13 = body.newObject("Sketcher::SketchObject", "Sketch012")
sketch13.AttachmentSupport = (doc.getObject("XZ_Plane"), [""])
sketch13.MapMode = "FlatFace"
sketch13.AttachmentOffset = App.Placement(App.Vector(0, 0, -3), App.Rotation())
sketch13.addGeometry(Part.Circle(App.Vector(0, 0, 0), App.Vector(0, 0, 1), 15), False)
sketch13.addConstraint([
    Sketcher.Constraint("Coincident", 0, 3, -1, 1),
    Sketcher.Constraint("Diameter", 0, 30.0),
])
pad4 = body.newObject("PartDesign::Pad", "Pad003")
pad4.Profile = sketch13
pad4.Length = 3

sketch14 = body.newObject("Sketcher::SketchObject", "Sketch013")
sketch14.AttachmentSupport = (doc.getObject("XZ_Plane"), [""])
sketch14.MapMode = "FlatFace"
sketch14.AttachmentOffset = App.Placement(App.Vector(0, 0, -3), App.Rotation())
sketch14.addGeometry([
    Part.LineSegment(App.Vector(-2, 10, 0), App.Vector(-2, 20, 0)),
    Part.ArcOfCircle(Part.Circle(App.Vector(0, 20, 0), App.Vector(0, 0, 1), 2), math.radians(0), math.radians(180)),
    Part.LineSegment(App.Vector(2, 20, 0), App.Vector(2, 10, 0)),
    Part.ArcOfCircle(Part.Circle(App.Vector(0, 10, 0), App.Vector(0, 0, 1), 2), math.radians(180), math.radians(360)),
    Part.LineSegment(App.Vector(-10, -2, 0), App.Vector(-20, -2, 0)),
    Part.ArcOfCircle(Part.Circle(App.Vector(-20, 0, 0), App.Vector(0, 0, 1), 2), math.radians(90), math.radians(270)),
    Part.LineSegment(App.Vector(-20, 2, 0), App.Vector(-10, 2, 0)),
    Part.ArcOfCircle(Part.Circle(App.Vector(-10, 0, 0), App.Vector(0, 0, 1), 2), math.radians(-90), math.radians(90)),
    Part.LineSegment(App.Vector(2, -10, 0), App.Vector(2, -20, 0)),
    Part.ArcOfCircle(Part.Circle(App.Vector(0, -20, 0), App.Vector(0, 0, 1), 2), math.radians(180), math.radians(360)),
    Part.LineSegment(App.Vector(-2, -20, 0), App.Vector(-2, -10, 0)),
    Part.ArcOfCircle(Part.Circle(App.Vector(0, -10, 0), App.Vector(0, 0, 1), 2), math.radians(0), math.radians(180)),
    Part.LineSegment(App.Vector(10, 2, 0), App.Vector(20, 2, 0)),
    Part.ArcOfCircle(Part.Circle(App.Vector(20, 0, 0), App.Vector(0, 0, 1), 2), math.radians(-90), math.radians(90)),
    Part.LineSegment(App.Vector(20, -2, 0), App.Vector(10, -2, 0)),
    Part.ArcOfCircle(Part.Circle(App.Vector(10, 0, 0), App.Vector(0, 0, 1), 2), math.radians(90), math.radians(270)),
], False)
sketch14.addConstraint([
    Sketcher.Constraint("Tangent", 0, 2, 1, 2),
    Sketcher.Constraint("Tangent", 1, 1, 2, 1),
    Sketcher.Constraint("Tangent", 2, 2, 3, 2),
    Sketcher.Constraint("Tangent", 3, 1, 0, 1),
    Sketcher.Constraint("Tangent", 4, 2, 5, 2),
    Sketcher.Constraint("Tangent", 5, 1, 6, 1),
    Sketcher.Constraint("Tangent", 6, 2, 7, 2),
    Sketcher.Constraint("Tangent", 7, 1, 4, 1),
    Sketcher.Constraint("Tangent", 8, 2, 9, 2),
    Sketcher.Constraint("Tangent", 9, 1, 10, 1),
    Sketcher.Constraint("Tangent", 10, 2, 11, 2),
    Sketcher.Constraint("Tangent", 11, 1, 8, 1),
    Sketcher.Constraint("Tangent", 12, 2, 13, 2),
    Sketcher.Constraint("Tangent", 13, 1, 14, 1),
    Sketcher.Constraint("Tangent", 14, 2, 15, 2),
    Sketcher.Constraint("Tangent", 15, 1, 12, 1),
    Sketcher.Constraint("Vertical", 0),
    Sketcher.Constraint("Vertical", 2),
    Sketcher.Constraint("Horizontal", 4),
    Sketcher.Constraint("Horizontal", 6),
    Sketcher.Constraint("Vertical", 8),
    Sketcher.Constraint("Vertical", 10),
    Sketcher.Constraint("Horizontal", 12),
    Sketcher.Constraint("Horizontal", 14),
    Sketcher.Constraint("Equal", 3, 5),
    Sketcher.Constraint("Equal", 7, 9),
    Sketcher.Constraint("Equal", 11, 13),
    Sketcher.Constraint("Symmetric", 1, 3, 9, 3, -1, 1),
    Sketcher.Constraint("Symmetric", 5, 3, 13, 3, -1, 1),
    Sketcher.Constraint("Symmetric", 7, 3, 15, 3, -2),
    Sketcher.Constraint("Symmetric", 3, 3, 11, 3, -1),
    Sketcher.Constraint("Equal", 14, 0),
    Sketcher.Constraint("Radius", 1, 2.0),
    Sketcher.Constraint("DistanceX", 4, 2, 4, 1, 10.0),
    Sketcher.Constraint("DistanceY", -1, 1, 1, 3, 20.0),
    Sketcher.Constraint("DistanceX", 5, 3, -1, 1, 20.0),
])
pocket10 = body.newObject("PartDesign::Pocket", "Pocket009")
pocket10.Profile = sketch14
pocket10.Length = 3
pocket10.Reversed = True

sketch15 = body.newObject("Sketcher::SketchObject", "Sketch014")
sketch15.AttachmentSupport = (doc.getObject("XZ_Plane"), [""])
sketch15.MapMode = "FlatFace"
sketch15.addGeometry([
    Part.ArcOfCircle(Part.Circle(App.Vector(-67.928932, -67.928932, 0), App.Vector(0, 0, 1), 30), math.radians(78.55731), math.radians(360)),
    Part.LineSegment(App.Vector(-61.977302, -38.525223, 0), App.Vector(-45.952273, -22.500195, 0)),
    Part.ArcOfCircle(Part.Circle(App.Vector(-75, -75, 0), App.Vector(0, 0, 1), 60), math.radians(45), math.radians(61.044592)),
    Part.ArcOfCircle(Part.Circle(App.Vector(-75, -75, 0), App.Vector(0, 0, 1), 60), math.radians(28.955408), math.radians(45)),
    Part.LineSegment(App.Vector(-22.500195, -45.952273, 0), App.Vector(-38.525223, -61.977302, 0)),
    Part.ArcOfCircle(Part.Circle(App.Vector(-67.928932, -67.928932, 0), App.Vector(0, 0, 1), 30), math.radians(0), math.radians(11.44269)),
], False)
sketch15.addConstraint([
    Sketcher.Constraint("Coincident", 0, 1, 1, 1),
    Sketcher.Constraint("Coincident", 1, 2, 2, 2),
    Sketcher.Constraint("Tangent", 2, 1, 3, 2),
    Sketcher.Constraint("Coincident", 3, 1, 4, 1),
    Sketcher.Constraint("Coincident", 4, 2, 5, 2),
    Sketcher.Constraint("Tangent", 5, 1, 0, 2),
    Sketcher.Constraint("Equal", 2, 3),
    Sketcher.Constraint("Equal", 0, 5),
    Sketcher.Constraint("Parallel", 1, 4),
    Sketcher.Constraint("Horizontal", 0, 3, 5, 1),
    Sketcher.Constraint("Equal", 1, 4),
    Sketcher.Constraint("Radius", 0, 30.0),
    Sketcher.Constraint("Radius", 2, 60.0),
    Sketcher.Constraint("Angle", 1, Q("45 deg")),
    Sketcher.Constraint("DistanceX", 2, 3, -1, 1, 75.0),
    Sketcher.Constraint("DistanceY", 2, 3, -1, 1, 75.0),
    Sketcher.Constraint("DistanceY", 2, 1, 1, 2, 10.073399),
    Sketcher.Constraint("DistanceX", 2, 1, 3, 1, 10.073399),
    Sketcher.Constraint("DistanceX", 0, 3, 0, 1, 5.95163),
    Sketcher.Constraint("DistanceX", 0, 1, 1, 2, 16.025029),
])
pad5 = body.newObject("PartDesign::Pad", "Pad004")
pad5.Profile = sketch15
pad5.Length = 3
pad5.Reversed = True

sketch16 = body.newObject("Sketcher::SketchObject", "Sketch015")
sketch16.AttachmentSupport = (doc.getObject("XZ_Plane"), [""])
sketch16.MapMode = "FlatFace"
sketch16.AttachmentOffset = App.Placement(App.Vector(0, 0, -3), App.Rotation())
sketch16.addGeometry([
    Part.ArcOfCircle(Part.Circle(App.Vector(-67.928932, -67.928932, 0), App.Vector(0, 0, 1), 35), math.radians(28.39845), math.radians(45)),
    Part.ArcOfCircle(Part.Circle(App.Vector(-67.928932, -67.928932, 0), App.Vector(0, 0, 1), 35), math.radians(45), math.radians(61.60155)),
    Part.LineSegment(App.Vector(-51.282918, -37.140782, 0), App.Vector(-43.975816, -29.83368, 0)),
    Part.ArcOfCircle(Part.Circle(App.Vector(-67.928932, -67.928932, 0), App.Vector(0, 0, 1), 45), math.radians(45), math.radians(57.839588)),
    Part.ArcOfCircle(Part.Circle(App.Vector(-67.928932, -67.928932, 0), App.Vector(0, 0, 1), 45), math.radians(32.160412), math.radians(45)),
    Part.LineSegment(App.Vector(-29.83368, -43.975816, 0), App.Vector(-37.140782, -51.282918, 0)),
], False)
sketch16.addConstraint([
    Sketcher.Constraint("Tangent", 0, 2, 1, 1),
    Sketcher.Constraint("Coincident", 1, 2, 2, 1),
    Sketcher.Constraint("Coincident", 2, 2, 3, 2),
    Sketcher.Constraint("Tangent", 3, 1, 4, 2),
    Sketcher.Constraint("Coincident", 4, 1, 5, 1),
    Sketcher.Constraint("Coincident", 5, 2, 0, 1),
    Sketcher.Constraint("Coincident", 3, 3, 0, 3),
    Sketcher.Constraint("Equal", 0, 1),
    Sketcher.Constraint("Equal", 3, 4),
    Sketcher.Constraint("Parallel", 2, 5),
    Sketcher.Constraint("Equal", 2, 5),
    Sketcher.Constraint("Radius", 0, 35.0),
    Sketcher.Constraint("Radius", 3, 45.0),
    Sketcher.Constraint("Angle", 2, Q("45 deg")),
    Sketcher.Constraint("DistanceY", 1, 2, -1, 1, 37.140782),
    Sketcher.Constraint("DistanceY", 2, 2, -1, 1, 29.83368),
    Sketcher.Constraint("DistanceX", 4, 1, -1, 1, 29.83368),
    Sketcher.Constraint("DistanceX", 2, 2, 0, 2, 0.795621),
    Sketcher.Constraint("DistanceX", 2, 2, 3, 1, 7.866689),
])
pocket11 = body.newObject("PartDesign::Pocket", "Pocket010")
pocket11.Profile = sketch16
pocket11.Length = 3
pocket11.Reversed = True

sketch17 = body.newObject("Sketcher::SketchObject", "Sketch016")
sketch17.AttachmentSupport = (doc.getObject("XZ_Plane"), [""])
sketch17.MapMode = "FlatFace"
sketch17.AttachmentOffset = App.Placement(App.Vector(0, 0, -3), App.Rotation())
sketch17.addGeometry([
    Part.LineSegment(App.Vector(-74.116117, -75.883883, 0), App.Vector(-81.187184, -82.954951, 0)),
    Part.ArcOfCircle(Part.Circle(App.Vector(-82.071068, -82.071068, 0), App.Vector(0, 0, 1), 1.25), math.radians(135), math.radians(315)),
    Part.LineSegment(App.Vector(-82.954951, -81.187184, 0), App.Vector(-75.883883, -74.116117, 0)),
    Part.ArcOfCircle(Part.Circle(App.Vector(-75, -75, 0), App.Vector(0, 0, 1), 1.25), math.radians(-45), math.radians(135)),
    Part.LineSegment(App.Vector(-52.902913, -54.67068, 0), App.Vector(-59.973981, -61.741748, 0)),
    Part.ArcOfCircle(Part.Circle(App.Vector(-60.857864, -60.857864, 0), App.Vector(0, 0, 1), 1.25), math.radians(135), math.radians(315)),
    Part.LineSegment(App.Vector(-61.741748, -59.973981, 0), App.Vector(-54.67068, -52.902913, 0)),
    Part.ArcOfCircle(Part.Circle(App.Vector(-53.786797, -53.786797, 0), App.Vector(0, 0, 1), 1.25), math.radians(-45), math.radians(135)),
], False)
sketch17.addConstraint([
    Sketcher.Constraint("Tangent", 0, 2, 1, 2),
    Sketcher.Constraint("Tangent", 1, 1, 2, 1),
    Sketcher.Constraint("Tangent", 2, 2, 3, 2),
    Sketcher.Constraint("Tangent", 3, 1, 0, 1),
    Sketcher.Constraint("Tangent", 4, 2, 5, 2),
    Sketcher.Constraint("Tangent", 5, 1, 6, 1),
    Sketcher.Constraint("Tangent", 6, 2, 7, 2),
    Sketcher.Constraint("Tangent", 7, 1, 4, 1),
    Sketcher.Constraint("Equal", 1, 3),
    Sketcher.Constraint("Equal", 3, 5),
    Sketcher.Constraint("Equal", 5, 7),
    Sketcher.Constraint("Parallel", 2, 4),
    Sketcher.Constraint("Equal", 2, 4),
    Sketcher.Constraint("Angle", 0, Q("-135 deg")),
    Sketcher.Constraint("Radius", 1, 1.25),
    Sketcher.Constraint("Distance", 0, 10.0),
    Sketcher.Constraint("DistanceX", 3, 3, -1, 1, 75.0),
    Sketcher.Constraint("DistanceY", 3, 3, -1, 1, 75.0),
    Sketcher.Constraint("DistanceX", 4, 2, -1, 1, 59.973981),
    Sketcher.Constraint("DistanceY", 5, 1, -1, 1, 59.973981),
])
pocket12 = body.newObject("PartDesign::Pocket", "Pocket011")
pocket12.Profile = sketch17
pocket12.Length = 3
pocket12.Reversed = True
doc.recompute()

datumline = body.newObject("PartDesign::Line", "DatumLine")
datumline.Placement = App.Placement(App.Vector(-67.928932, 0, -67.928932), App.Rotation(App.Vector(0, 0, 1), App.Vector(0, 1, 0)))
polarpattern = body.newObject("PartDesign::PolarPattern", "PolarPattern")
polarpattern.Originals = [pocket12]
polarpattern.Axis = (datumline, [""])
polarpattern.Angle = 360
polarpattern.Occurrences = 8
body.Tip = polarpattern

sketch18 = body.newObject("Sketcher::SketchObject", "Sketch017")
sketch18.AttachmentSupport = (doc.getObject("XZ_Plane"), [""])
sketch18.MapMode = "FlatFace"
sketch18.AttachmentOffset = App.Placement(App.Vector(0, 0, -3), App.Rotation())
sketch18.addGeometry([
    Part.Circle(App.Vector(9.899495, -9.899495, 0), App.Vector(0, 0, 1), 1.25),
    Part.Circle(App.Vector(-9.899495, 9.899495, 0), App.Vector(0, 0, 1), 1.25),
], False)
sketch18.addConstraint([
    Sketcher.Constraint("Equal", 0, 1),
    Sketcher.Constraint("Symmetric", 0, 3, 1, 3, -1, 1),
    Sketcher.Constraint("Diameter", 0, 2.5),
    Sketcher.Constraint("DistanceX", 1, 3, 0, 3, 19.79899),
    Sketcher.Constraint("DistanceY", 0, 3, 1, 3, 19.79899),
])
pocket13 = body.newObject("PartDesign::Pocket", "Pocket012")
pocket13.Profile = sketch18
pocket13.Length = 3
pocket13.Reversed = True

sketch19 = body.newObject("Sketcher::SketchObject", "Sketch018")
sketch19.AttachmentSupport = (doc.getObject("XZ_Plane"), [""])
sketch19.MapMode = "FlatFace"
sketch19.AttachmentOffset = App.Placement(App.Vector(0, 0, -3), App.Rotation())
sketch19.addGeometry([
    Part.Circle(App.Vector(0, -30, 0), App.Vector(0, 0, 1), 1.5),
    Part.Circle(App.Vector(30, 0, 0), App.Vector(0, 0, 1), 1.5),
    Part.Circle(App.Vector(0, 30, 0), App.Vector(0, 0, 1), 1.5),
    Part.Circle(App.Vector(-30, 0, 0), App.Vector(0, 0, 1), 1.5),
], False)
sketch19.addConstraint([
    Sketcher.Constraint("Equal", 0, 1),
    Sketcher.Constraint("Equal", 1, 2),
    Sketcher.Constraint("Equal", 2, 3),
    Sketcher.Constraint("Symmetric", 0, 3, 2, 3, -1, 1),
    Sketcher.Constraint("Symmetric", 1, 3, 3, 3, -1, 1),
    Sketcher.Constraint("PointOnObject", 0, 3, -2),
    Sketcher.Constraint("PointOnObject", 1, 3, -1),
    Sketcher.Constraint("Diameter", 0, 3.0),
    Sketcher.Constraint("DistanceY", 0, 3, -1, 1, 30.0),
    Sketcher.Constraint("DistanceX", -1, 1, 1, 3, 30.0),
])
pocket14 = body.newObject("PartDesign::Pocket", "Pocket013")
pocket14.Profile = sketch19
pocket14.Length = 10
pocket14.Reversed = True

sketch20 = body.newObject("Sketcher::SketchObject", "Sketch019")
sketch20.AttachmentSupport = (doc.getObject("XZ_Plane"), [""])
sketch20.MapMode = "FlatFace"
sketch20.AttachmentOffset = App.Placement(App.Vector(0, 0, -3), App.Rotation())
sketch20.addGeometry([
    Part.Circle(App.Vector(-15, 15, 0), App.Vector(0, 0, 1), 1.5),
    Part.Circle(App.Vector(15, -15, 0), App.Vector(0, 0, 1), 1.5),
], False)
sketch20.addConstraint([
    Sketcher.Constraint("Equal", 0, 1),
    Sketcher.Constraint("Symmetric", 0, 3, 1, 3, -1, 1),
    Sketcher.Constraint("Diameter", 0, 3.0),
    Sketcher.Constraint("DistanceX", 0, 3, -1, 1, 15.0),
    Sketcher.Constraint("DistanceY", -1, 1, 0, 3, 15.0),
])
pocket15 = body.newObject("PartDesign::Pocket", "Pocket014")
pocket15.Profile = sketch20
pocket15.Length = 10
pocket15.Reversed = True

doc.recompute()
